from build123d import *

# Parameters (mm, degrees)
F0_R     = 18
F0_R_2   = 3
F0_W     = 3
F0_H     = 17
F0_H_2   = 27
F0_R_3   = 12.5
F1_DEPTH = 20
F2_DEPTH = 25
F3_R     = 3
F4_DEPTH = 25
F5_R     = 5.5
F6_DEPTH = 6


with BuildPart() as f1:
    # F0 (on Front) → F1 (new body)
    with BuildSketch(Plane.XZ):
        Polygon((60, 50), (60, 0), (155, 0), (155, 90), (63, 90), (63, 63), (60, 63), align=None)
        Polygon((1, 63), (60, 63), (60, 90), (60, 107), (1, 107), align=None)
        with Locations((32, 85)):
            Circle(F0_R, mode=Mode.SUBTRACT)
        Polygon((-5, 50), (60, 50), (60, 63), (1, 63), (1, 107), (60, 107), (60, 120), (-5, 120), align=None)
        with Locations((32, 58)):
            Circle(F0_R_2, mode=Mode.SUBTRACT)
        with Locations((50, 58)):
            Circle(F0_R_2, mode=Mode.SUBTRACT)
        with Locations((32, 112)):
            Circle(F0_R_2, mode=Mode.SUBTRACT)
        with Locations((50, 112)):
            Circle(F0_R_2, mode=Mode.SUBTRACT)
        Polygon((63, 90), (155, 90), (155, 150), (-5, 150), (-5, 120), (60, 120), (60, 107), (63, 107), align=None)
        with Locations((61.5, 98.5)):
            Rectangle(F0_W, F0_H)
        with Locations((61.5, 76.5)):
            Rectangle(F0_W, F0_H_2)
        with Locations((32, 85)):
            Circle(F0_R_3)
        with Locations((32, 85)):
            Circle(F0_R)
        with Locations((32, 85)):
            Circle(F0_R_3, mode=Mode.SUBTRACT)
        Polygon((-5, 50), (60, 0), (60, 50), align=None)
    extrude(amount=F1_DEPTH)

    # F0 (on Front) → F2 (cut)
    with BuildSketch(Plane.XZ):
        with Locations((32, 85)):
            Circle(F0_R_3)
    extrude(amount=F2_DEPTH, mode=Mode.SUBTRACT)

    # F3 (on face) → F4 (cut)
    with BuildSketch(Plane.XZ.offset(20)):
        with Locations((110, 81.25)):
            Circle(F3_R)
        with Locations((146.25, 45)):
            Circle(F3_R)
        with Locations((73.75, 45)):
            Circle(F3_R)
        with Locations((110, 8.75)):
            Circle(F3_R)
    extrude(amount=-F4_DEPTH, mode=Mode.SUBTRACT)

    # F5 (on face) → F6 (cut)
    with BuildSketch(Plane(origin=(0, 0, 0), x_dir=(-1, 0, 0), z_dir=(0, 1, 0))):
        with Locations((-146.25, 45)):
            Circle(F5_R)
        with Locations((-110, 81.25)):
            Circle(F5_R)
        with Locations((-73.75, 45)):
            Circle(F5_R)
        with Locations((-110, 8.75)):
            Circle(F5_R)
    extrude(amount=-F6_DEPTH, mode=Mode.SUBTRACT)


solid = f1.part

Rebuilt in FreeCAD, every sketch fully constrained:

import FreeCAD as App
import Part
import Sketcher
from FreeCAD import Vector


def add_polygon(sketch, points):
    """Adds a closed chain of lines whose ends are joined by coincident constraints."""
    first, n = sketch.GeometryCount, len(points)
    for a, b in zip(points, points[1:] + points[:1]):
        sketch.addGeometry(Part.LineSegment(App.Vector(*a, 0), App.Vector(*b, 0)), False)
    for i in range(n):
        sketch.addConstraint(Sketcher.Constraint("Coincident", first + i, 2, first + (i + 1) % n, 1))

doc = App.newDocument("Part")
body = doc.addObject("PartDesign::Body", "Body")

sketch1 = body.newObject("Sketcher::SketchObject", "Sketch")
sketch1.AttachmentSupport = (doc.getObject("XZ_Plane"), [""])
sketch1.MapMode = "FlatFace"
add_polygon(sketch1, [(60, 0), (155, 0), (155, 150), (-5, 150), (-5, 50)])
sketch1.addGeometry(Part.Circle(Vector(32, 58, 0), Vector(0, 0, 1), 3), False)
sketch1.addGeometry(Part.Circle(Vector(50, 58, 0), Vector(0, 0, 1), 3), False)
sketch1.addGeometry(Part.Circle(Vector(32, 85, 0), Vector(0, 0, 1), 12.5), False)
sketch1.addGeometry(Part.Circle(Vector(32, 112, 0), Vector(0, 0, 1), 3), False)
sketch1.addGeometry(Part.Circle(Vector(50, 112, 0), Vector(0, 0, 1), 3), False)
sketch1.addConstraint(Sketcher.Constraint("Horizontal", 0))
sketch1.addConstraint(Sketcher.Constraint("Vertical", 1))
sketch1.addConstraint(Sketcher.Constraint("Horizontal", 2))
sketch1.addConstraint(Sketcher.Constraint("Vertical", 3))
sketch1.addConstraint(Sketcher.Constraint("Equal", 5, 6))
sketch1.addConstraint(Sketcher.Constraint("Equal", 6, 8))
sketch1.addConstraint(Sketcher.Constraint("Equal", 8, 9))
sketch1.addConstraint(Sketcher.Constraint("PointOnObject", 0, 2, -1))
sketch1.addConstraint(Sketcher.Constraint("Horizontal", 5, 3, 6, 3))
sketch1.addConstraint(Sketcher.Constraint("Horizontal", 8, 3, 9, 3))
sketch1.addConstraint(Sketcher.Constraint("Vertical", 5, 3, 7, 3))
sketch1.addConstraint(Sketcher.Constraint("Vertical", 7, 3, 8, 3))
sketch1.addConstraint(Sketcher.Constraint("Vertical", 6, 3, 9, 3))
sketch1.addConstraint(Sketcher.Constraint("Diameter", 5, 6.0))
sketch1.addConstraint(Sketcher.Constraint("Diameter", 7, 25.0))
sketch1.addConstraint(Sketcher.Constraint("DistanceX", 0, 1, 0, 2, 95.0))
sketch1.addConstraint(Sketcher.Constraint("DistanceX", 2, 2, 2, 1, 160.0))
sketch1.addConstraint(Sketcher.Constraint("DistanceY", 1, 1, 1, 2, 150.0))
sketch1.addConstraint(Sketcher.Constraint("DistanceY", 3, 2, 3, 1, 100.0))
sketch1.addConstraint(Sketcher.Constraint("DistanceX", -1, 1, 5, 3, 32.0))
sketch1.addConstraint(Sketcher.Constraint("DistanceY", -1, 1, 5, 3, 58.0))
sketch1.addConstraint(Sketcher.Constraint("DistanceX", -1, 1, 6, 3, 50.0))
sketch1.addConstraint(Sketcher.Constraint("DistanceY", -1, 1, 7, 3, 85.0))
sketch1.addConstraint(Sketcher.Constraint("DistanceY", -1, 1, 8, 3, 112.0))
sketch1.addConstraint(Sketcher.Constraint("DistanceX", -1, 1, 0, 2, 155.0))
pad1 = body.newObject("PartDesign::Pad", "Pad")
pad1.Profile = sketch1
pad1.Length = 20

sketch2 = body.newObject("Sketcher::SketchObject", "Sketch001")
sketch2.AttachmentSupport = (doc.getObject("XZ_Plane"), [""])
sketch2.MapMode = "FlatFace"
sketch2.addGeometry(Part.Circle(Vector(32, 85, 0), Vector(0, 0, 1), 12.5), False)
sketch2.addConstraint(Sketcher.Constraint("Diameter", 0, 25.0))
sketch2.addConstraint(Sketcher.Constraint("DistanceX", -1, 1, 0, 3, 32.0))
sketch2.addConstraint(Sketcher.Constraint("DistanceY", -1, 1, 0, 3, 85.0))
pocket1 = body.newObject("PartDesign::Pocket", "Pocket")
pocket1.Profile = sketch2
pocket1.Length = 25
pocket1.Reversed = True

sketch3 = body.newObject("Sketcher::SketchObject", "Sketch002")
sketch3.AttachmentSupport = (doc.getObject("XZ_Plane"), [""])
sketch3.MapMode = "FlatFace"
sketch3.AttachmentOffset = App.Placement(Vector(0, 0, 20), App.Rotation())
sketch3.addGeometry(Part.Circle(Vector(110, 81.25, 0), Vector(0, 0, 1), 3), False)
sketch3.addGeometry(Part.Circle(Vector(146.25, 45, 0), Vector(0, 0, 1), 3), False)
sketch3.addGeometry(Part.Circle(Vector(73.75, 45, 0), Vector(0, 0, 1), 3), False)
sketch3.addGeometry(Part.Circle(Vector(110, 8.75, 0), Vector(0, 0, 1), 3), False)
sketch3.addConstraint(Sketcher.Constraint("Equal", 0, 1))
sketch3.addConstraint(Sketcher.Constraint("Equal", 1, 2))
sketch3.addConstraint(Sketcher.Constraint("Equal", 2, 3))
sketch3.addConstraint(Sketcher.Constraint("Horizontal", 1, 3, 2, 3))
sketch3.addConstraint(Sketcher.Constraint("Vertical", 0, 3, 3, 3))
sketch3.addConstraint(Sketcher.Constraint("Diameter", 0, 6.0))
sketch3.addConstraint(Sketcher.Constraint("DistanceX", -1, 1, 0, 3, 110.0))
sketch3.addConstraint(Sketcher.Constraint("DistanceY", -1, 1, 1, 3, 45.0))
sketch3.addConstraint(Sketcher.Constraint("DistanceX", 2, 3, 1, 3, 72.5))
sketch3.addConstraint(Sketcher.Constraint("DistanceY", 3, 3, 0, 3, 72.5))
sketch3.addConstraint(Sketcher.Constraint("DistanceY", -1, 1, 0, 3, 81.25))
sketch3.addConstraint(Sketcher.Constraint("DistanceX", -1, 1, 1, 3, 146.25))
pocket2 = body.newObject("PartDesign::Pocket", "Pocket001")
pocket2.Profile = sketch3
pocket2.Length = 25

sketch4 = body.newObject("Sketcher::SketchObject", "Sketch003")
sketch4.AttachmentSupport = (doc.getObject("XZ_Plane"), [""])
sketch4.MapMode = "FlatFace"
sketch4.addGeometry(Part.Circle(Vector(146.25, 45, 0), Vector(0, 0, 1), 5.5), False)
sketch4.addGeometry(Part.Circle(Vector(110, 81.25, 0), Vector(0, 0, 1), 5.5), False)
sketch4.addGeometry(Part.Circle(Vector(73.75, 45, 0), Vector(0, 0, 1), 5.5), False)
sketch4.addGeometry(Part.Circle(Vector(110, 8.75, 0), Vector(0, 0, 1), 5.5), False)
sketch4.addConstraint(Sketcher.Constraint("Equal", 0, 1))
sketch4.addConstraint(Sketcher.Constraint("Equal", 1, 2))
sketch4.addConstraint(Sketcher.Constraint("Equal", 2, 3))
sketch4.addConstraint(Sketcher.Constraint("Horizontal", 0, 3, 2, 3))
sketch4.addConstraint(Sketcher.Constraint("Vertical", 1, 3, 3, 3))
sketch4.addConstraint(Sketcher.Constraint("Diameter", 0, 11.0))
sketch4.addConstraint(Sketcher.Constraint("DistanceY", -1, 1, 0, 3, 45.0))
sketch4.addConstraint(Sketcher.Constraint("DistanceX", -1, 1, 1, 3, 110.0))
sketch4.addConstraint(Sketcher.Constraint("DistanceX", 2, 3, 0, 3, 72.5))
sketch4.addConstraint(Sketcher.Constraint("DistanceY", 3, 3, 1, 3, 72.5))
sketch4.addConstraint(Sketcher.Constraint("DistanceX", -1, 1, 0, 3, 146.25))
sketch4.addConstraint(Sketcher.Constraint("DistanceY", -1, 1, 1, 3, 81.25))
pocket3 = body.newObject("PartDesign::Pocket", "Pocket002")
pocket3.Profile = sketch4
pocket3.Length = 6
pocket3.Reversed = True

doc.recompute()
